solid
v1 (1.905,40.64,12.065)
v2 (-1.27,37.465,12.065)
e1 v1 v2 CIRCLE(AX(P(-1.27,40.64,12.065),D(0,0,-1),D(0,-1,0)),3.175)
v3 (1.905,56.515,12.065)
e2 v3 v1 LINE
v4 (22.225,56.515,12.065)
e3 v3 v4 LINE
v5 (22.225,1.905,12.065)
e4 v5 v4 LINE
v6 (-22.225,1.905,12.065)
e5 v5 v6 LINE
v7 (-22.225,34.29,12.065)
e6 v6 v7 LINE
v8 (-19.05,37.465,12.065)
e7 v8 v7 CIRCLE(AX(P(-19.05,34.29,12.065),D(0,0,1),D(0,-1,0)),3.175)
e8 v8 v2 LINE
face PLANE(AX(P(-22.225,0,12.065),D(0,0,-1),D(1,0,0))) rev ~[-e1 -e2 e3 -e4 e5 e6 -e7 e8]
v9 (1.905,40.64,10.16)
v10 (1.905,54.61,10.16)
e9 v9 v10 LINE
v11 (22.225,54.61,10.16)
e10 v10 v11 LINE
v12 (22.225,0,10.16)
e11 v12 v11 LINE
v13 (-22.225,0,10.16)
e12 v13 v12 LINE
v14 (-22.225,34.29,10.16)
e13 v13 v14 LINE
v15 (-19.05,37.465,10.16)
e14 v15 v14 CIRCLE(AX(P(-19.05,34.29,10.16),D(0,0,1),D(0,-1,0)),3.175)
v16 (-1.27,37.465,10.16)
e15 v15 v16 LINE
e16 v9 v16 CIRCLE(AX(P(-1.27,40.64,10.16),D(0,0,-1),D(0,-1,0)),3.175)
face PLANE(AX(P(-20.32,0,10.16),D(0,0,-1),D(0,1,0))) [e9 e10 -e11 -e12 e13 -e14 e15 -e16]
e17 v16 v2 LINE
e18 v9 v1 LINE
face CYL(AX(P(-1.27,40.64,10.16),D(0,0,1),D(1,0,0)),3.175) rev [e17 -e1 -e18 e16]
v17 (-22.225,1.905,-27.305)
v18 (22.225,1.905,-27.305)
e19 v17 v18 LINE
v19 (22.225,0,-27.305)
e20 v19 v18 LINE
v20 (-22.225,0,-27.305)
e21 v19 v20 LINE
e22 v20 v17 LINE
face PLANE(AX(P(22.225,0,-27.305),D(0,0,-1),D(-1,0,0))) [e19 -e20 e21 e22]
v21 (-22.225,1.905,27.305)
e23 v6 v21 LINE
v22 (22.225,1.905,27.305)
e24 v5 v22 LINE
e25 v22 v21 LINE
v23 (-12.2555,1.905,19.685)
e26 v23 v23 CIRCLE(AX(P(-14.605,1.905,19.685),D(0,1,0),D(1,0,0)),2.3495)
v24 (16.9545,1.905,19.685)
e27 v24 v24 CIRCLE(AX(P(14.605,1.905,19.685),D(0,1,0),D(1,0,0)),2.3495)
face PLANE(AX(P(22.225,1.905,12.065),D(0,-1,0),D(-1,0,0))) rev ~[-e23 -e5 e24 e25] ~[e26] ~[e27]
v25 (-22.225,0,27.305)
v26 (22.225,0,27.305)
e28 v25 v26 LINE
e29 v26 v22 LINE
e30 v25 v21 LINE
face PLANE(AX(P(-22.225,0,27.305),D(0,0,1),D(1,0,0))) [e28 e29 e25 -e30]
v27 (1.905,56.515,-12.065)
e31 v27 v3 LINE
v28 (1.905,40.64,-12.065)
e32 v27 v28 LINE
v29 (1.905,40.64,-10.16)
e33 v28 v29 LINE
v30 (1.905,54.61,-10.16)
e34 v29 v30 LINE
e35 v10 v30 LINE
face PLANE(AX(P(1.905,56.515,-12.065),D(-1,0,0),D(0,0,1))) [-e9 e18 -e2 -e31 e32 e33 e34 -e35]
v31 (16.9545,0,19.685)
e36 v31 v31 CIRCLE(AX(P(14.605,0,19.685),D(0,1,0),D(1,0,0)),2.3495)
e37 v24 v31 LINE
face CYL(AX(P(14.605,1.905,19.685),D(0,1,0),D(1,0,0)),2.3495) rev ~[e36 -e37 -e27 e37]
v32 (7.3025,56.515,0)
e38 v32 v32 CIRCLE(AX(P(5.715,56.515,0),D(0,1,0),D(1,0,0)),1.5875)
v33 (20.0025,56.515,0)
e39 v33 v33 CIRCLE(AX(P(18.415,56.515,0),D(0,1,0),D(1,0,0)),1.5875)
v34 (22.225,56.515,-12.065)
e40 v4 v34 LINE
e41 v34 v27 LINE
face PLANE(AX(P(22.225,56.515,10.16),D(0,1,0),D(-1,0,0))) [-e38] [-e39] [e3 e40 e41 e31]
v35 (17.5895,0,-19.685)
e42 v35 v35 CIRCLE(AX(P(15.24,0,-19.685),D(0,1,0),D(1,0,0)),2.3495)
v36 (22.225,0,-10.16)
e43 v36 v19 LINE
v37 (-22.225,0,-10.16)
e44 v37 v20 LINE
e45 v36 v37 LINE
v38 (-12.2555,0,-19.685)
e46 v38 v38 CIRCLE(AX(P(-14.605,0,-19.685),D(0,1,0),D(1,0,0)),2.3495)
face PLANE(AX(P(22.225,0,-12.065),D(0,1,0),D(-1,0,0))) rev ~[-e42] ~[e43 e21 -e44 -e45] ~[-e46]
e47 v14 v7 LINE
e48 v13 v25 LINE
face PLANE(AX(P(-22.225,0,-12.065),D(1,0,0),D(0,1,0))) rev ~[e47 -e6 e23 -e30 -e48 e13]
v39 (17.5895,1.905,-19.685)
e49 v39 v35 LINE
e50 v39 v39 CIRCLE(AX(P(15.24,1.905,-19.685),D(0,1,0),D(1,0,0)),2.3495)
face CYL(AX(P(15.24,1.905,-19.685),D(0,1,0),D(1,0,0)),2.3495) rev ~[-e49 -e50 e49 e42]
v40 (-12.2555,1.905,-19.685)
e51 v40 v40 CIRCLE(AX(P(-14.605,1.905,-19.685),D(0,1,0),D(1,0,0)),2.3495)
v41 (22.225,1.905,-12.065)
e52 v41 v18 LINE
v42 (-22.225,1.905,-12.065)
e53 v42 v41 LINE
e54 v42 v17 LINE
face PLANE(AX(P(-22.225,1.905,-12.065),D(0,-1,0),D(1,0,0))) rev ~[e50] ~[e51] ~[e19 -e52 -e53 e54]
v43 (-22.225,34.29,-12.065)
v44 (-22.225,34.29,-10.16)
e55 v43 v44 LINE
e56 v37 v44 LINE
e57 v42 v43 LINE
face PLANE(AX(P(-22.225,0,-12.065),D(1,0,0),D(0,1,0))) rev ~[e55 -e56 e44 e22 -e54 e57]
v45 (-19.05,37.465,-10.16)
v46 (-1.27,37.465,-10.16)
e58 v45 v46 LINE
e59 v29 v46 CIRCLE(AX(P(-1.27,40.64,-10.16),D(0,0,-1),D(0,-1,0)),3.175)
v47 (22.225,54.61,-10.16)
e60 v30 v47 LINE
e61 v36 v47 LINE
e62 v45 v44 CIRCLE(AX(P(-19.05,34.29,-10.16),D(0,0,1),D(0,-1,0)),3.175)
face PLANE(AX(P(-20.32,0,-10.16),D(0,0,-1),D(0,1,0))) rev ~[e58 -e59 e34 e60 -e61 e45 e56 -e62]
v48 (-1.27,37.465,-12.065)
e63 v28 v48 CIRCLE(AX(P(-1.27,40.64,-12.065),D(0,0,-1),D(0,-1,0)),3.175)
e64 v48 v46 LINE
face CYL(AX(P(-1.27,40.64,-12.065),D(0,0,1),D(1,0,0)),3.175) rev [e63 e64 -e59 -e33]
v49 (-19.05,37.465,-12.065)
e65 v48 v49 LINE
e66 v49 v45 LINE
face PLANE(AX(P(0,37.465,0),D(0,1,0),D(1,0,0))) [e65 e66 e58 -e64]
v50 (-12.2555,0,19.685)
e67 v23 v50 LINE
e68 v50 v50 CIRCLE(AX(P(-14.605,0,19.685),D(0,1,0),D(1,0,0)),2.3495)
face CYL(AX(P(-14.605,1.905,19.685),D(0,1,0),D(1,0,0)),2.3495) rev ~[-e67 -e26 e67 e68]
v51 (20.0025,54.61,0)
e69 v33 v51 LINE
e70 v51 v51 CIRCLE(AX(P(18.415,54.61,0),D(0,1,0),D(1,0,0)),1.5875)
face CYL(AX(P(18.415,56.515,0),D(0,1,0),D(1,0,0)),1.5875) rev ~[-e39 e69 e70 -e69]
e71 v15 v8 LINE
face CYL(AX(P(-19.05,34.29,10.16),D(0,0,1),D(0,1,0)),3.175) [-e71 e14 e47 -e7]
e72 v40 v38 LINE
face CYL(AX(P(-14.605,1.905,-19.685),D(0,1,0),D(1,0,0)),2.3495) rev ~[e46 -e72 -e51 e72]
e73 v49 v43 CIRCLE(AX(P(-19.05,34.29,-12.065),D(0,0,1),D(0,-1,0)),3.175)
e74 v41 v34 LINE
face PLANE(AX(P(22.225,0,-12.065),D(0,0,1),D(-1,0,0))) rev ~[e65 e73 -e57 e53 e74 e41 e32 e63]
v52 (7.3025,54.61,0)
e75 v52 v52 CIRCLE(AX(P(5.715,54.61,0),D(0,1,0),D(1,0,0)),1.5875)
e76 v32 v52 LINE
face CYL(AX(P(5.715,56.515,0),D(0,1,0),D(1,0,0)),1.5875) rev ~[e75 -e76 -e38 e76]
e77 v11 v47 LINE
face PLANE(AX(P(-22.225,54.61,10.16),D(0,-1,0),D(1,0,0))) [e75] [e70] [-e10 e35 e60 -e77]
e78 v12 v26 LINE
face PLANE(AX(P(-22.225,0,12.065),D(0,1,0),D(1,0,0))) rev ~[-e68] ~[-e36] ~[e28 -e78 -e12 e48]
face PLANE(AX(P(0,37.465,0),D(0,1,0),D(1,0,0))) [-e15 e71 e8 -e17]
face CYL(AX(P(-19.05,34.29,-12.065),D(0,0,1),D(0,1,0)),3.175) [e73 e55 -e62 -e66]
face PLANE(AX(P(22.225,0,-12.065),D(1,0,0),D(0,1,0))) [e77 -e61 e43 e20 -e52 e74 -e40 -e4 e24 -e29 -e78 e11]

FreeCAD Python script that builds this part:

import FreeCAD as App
import Part
import Sketcher
from FreeCAD import Vector
Q = App.Units.Quantity


def edges_at(feature, points):
    """Names of the edges that pass closest to the given points."""
    edges = feature.Shape.Edges
    near = lambda p: min(range(len(edges)), key=lambda i: edges[i].distToShape(Part.Vertex(*p))[0])
    return sorted({f"Edge{near(p) + 1}" for p in points})


def add_polygon(sketch, points):
    """Adds a closed chain of lines whose ends are joined by coincident constraints."""
    first, n = sketch.GeometryCount, len(points)
    for a, b in zip(points, points[1:] + points[:1]):
        sketch.addGeometry(Part.LineSegment(App.Vector(*a, 0), App.Vector(*b, 0)), False)
    for i in range(n):
        sketch.addConstraint(Sketcher.Constraint("Coincident", first + i, 2, first + (i + 1) % n, 1))

doc = App.newDocument("Part")
body = doc.addObject("PartDesign::Body", "Body")
body.AllowCompound = True

# Sketch on XZ plane
sketch1 = body.newObject("Sketcher::SketchObject", "Sketch")
sketch1.AttachmentSupport = (doc.getObject("XZ_Plane"), [""])
sketch1.MapMode = "FlatFace"
add_polygon(sketch1, [(-22.225, -12.065), (-22.225, 12.065), (22.225, 12.065), (22.225, -12.065)])  # lines 0-3
add_polygon(sketch1, [(20.32, 10.16), (-20.32, 10.16), (-20.32, -10.16), (20.32, -10.16)])  # lines 4-7
sketch1.addConstraint([
    Sketcher.Constraint("Vertical", 0),
    Sketcher.Constraint("Horizontal", 1),
    Sketcher.Constraint("Vertical", 2),
    Sketcher.Constraint("Horizontal", 3),
    Sketcher.Constraint("Horizontal", 4),
    Sketcher.Constraint("Vertical", 5),
    Sketcher.Constraint("Horizontal", 6),
    Sketcher.Constraint("Vertical", 7),
    Sketcher.Constraint("Symmetric", 0, 2, 2, 2, -1, 1),
    Sketcher.Constraint("Symmetric", 4, 2, 6, 2, -1, 1),
    Sketcher.Constraint("DistanceX", 4, 2, 4, 1, Q("1.6 in")),
    Sketcher.Constraint("DistanceY", 5, 2, 5, 1, Q("0.8 in")),
    Sketcher.Constraint("DistanceX", 1, 1, 1, 2, Q("1.75 in")),
    Sketcher.Constraint("DistanceY", 0, 1, 0, 2, Q("0.95 in")),
])
pad1 = body.newObject("PartDesign::Pad", "Pad")
pad1.Profile = sketch1
pad1.Length = Q("2.225 in")
pad1.Reversed = True

# Sketch on YZ plane
sketch2 = body.newObject("Sketcher::SketchObject", "Sketch001")
sketch2.AttachmentSupport = (doc.getObject("YZ_Plane"), [""])
sketch2.MapMode = "FlatFace"
sketch2.AttachmentOffset = App.Placement(Vector(0, 0, -0.8 * 25.4), App.Rotation())
add_polygon(sketch2, [(0, 10.16), (0, -10.16), (56.515, -10.16), (56.515, 10.16)])  # lines 0-3
sketch2.addConstraint([
    Sketcher.Constraint("Vertical", 0),
    Sketcher.Constraint("Horizontal", 1),
    Sketcher.Constraint("Vertical", 2),
    Sketcher.Constraint("Horizontal", 3),
    Sketcher.Constraint("Symmetric", 0, 2, 3, 2, -1, 1),
    Sketcher.Constraint("DistanceY", 0, 2, 0, 1, Q("0.8 in")),
    Sketcher.Constraint("DistanceX", 1, 1, 1, 2, Q("2.225 in")),
])
pocket1 = body.newObject("PartDesign::Pocket", "Pocket")
pocket1.Profile = sketch2
pocket1.Length = Q("2.225 in")

# Sketch on YZ plane
sketch3 = body.newObject("Sketcher::SketchObject", "Sketch002")
sketch3.AttachmentSupport = (doc.getObject("YZ_Plane"), [""])
sketch3.MapMode = "FlatFace"
sketch3.AttachmentOffset = App.Placement(Vector(0, 0, 0.8 * 25.4), App.Rotation())
add_polygon(sketch3, [(0, -10.16), (0, 10.16), (56.515, 10.16), (56.515, -10.16)])  # lines 0-3
sketch3.addConstraint([
    Sketcher.Constraint("Vertical", 0),
    Sketcher.Constraint("Horizontal", 1),
    Sketcher.Constraint("Vertical", 2),
    Sketcher.Constraint("Horizontal", 3),
    Sketcher.Constraint("Symmetric", 0, 2, 3, 2, -1, 1),
    Sketcher.Constraint("DistanceY", 0, 1, 0, 2, Q("0.8 in")),
    Sketcher.Constraint("DistanceX", 1, 1, 1, 2, Q("2.225 in")),
])
pocket2 = body.newObject("PartDesign::Pocket", "Pocket001")
pocket2.Profile = sketch3
pocket2.Length = Q("2.225 in")
pocket2.Reversed = True

# Sketch on XY plane
sketch4 = body.newObject("Sketcher::SketchObject", "Sketch003")
sketch4.AttachmentSupport = (doc.getObject("XY_Plane"), [""])
sketch4.MapMode = "FlatFace"
sketch4.AttachmentOffset = App.Placement(Vector(0, 0, 0.4 * 25.4), App.Rotation())
add_polygon(sketch4, [(-22.225, 54.61), (-22.225, 56.515), (22.225, 56.515), (22.225, 54.61)])  # lines 0-3
sketch4.addConstraint([
    Sketcher.Constraint("Vertical", 0),
    Sketcher.Constraint("Horizontal", 1),
    Sketcher.Constraint("Vertical", 2),
    Sketcher.Constraint("Horizontal", 3),
    Sketcher.Constraint("DistanceX", 1, 1, 1, 2, Q("1.75 in")),
    Sketcher.Constraint("DistanceY", 0, 1, 0, 2, Q("0.075 in")),
    Sketcher.Constraint("DistanceY", -1, 1, 2, 2, Q("2.15 in")),
    Sketcher.Constraint("DistanceX", 0, 2, -1, 1, Q("0.875 in")),
])
pad2 = body.newObject("PartDesign::Pad", "Pad001")
pad2.Profile = sketch4
pad2.Length = Q("0.8 in")
pad2.Reversed = True

# Sketch on XY plane
sketch5 = body.newObject("Sketcher::SketchObject", "Sketch004")
sketch5.AttachmentSupport = (doc.getObject("XY_Plane"), [""])
sketch5.MapMode = "FlatFace"
sketch5.AttachmentOffset = App.Placement(Vector(0, 0, 0.475 * 25.4), App.Rotation())
add_polygon(sketch5, [(-22.225, 1.905), (-22.225, 0), (22.225, 0), (22.225, 1.905)])  # lines 0-3
sketch5.addConstraint([
    Sketcher.Constraint("Vertical", 0),
    Sketcher.Constraint("Horizontal", 1),
    Sketcher.Constraint("Vertical", 2),
    Sketcher.Constraint("Horizontal", 3),
    Sketcher.Constraint("Symmetric", 0, 2, 1, 2, -1, 1),
    Sketcher.Constraint("DistanceX", 1, 1, 1, 2, Q("1.75 in")),
    Sketcher.Constraint("DistanceY", 0, 2, 0, 1, Q("0.075 in")),
])
pad3 = body.newObject("PartDesign::Pad", "Pad002")
pad3.Profile = sketch5
pad3.Length = Q("0.6 in")

# Sketch on XY plane
sketch6 = body.newObject("Sketcher::SketchObject", "Sketch005")
sketch6.AttachmentSupport = (doc.getObject("XY_Plane"), [""])
sketch6.MapMode = "FlatFace"
sketch6.AttachmentOffset = App.Placement(Vector(0, 0, -0.475 * 25.4), App.Rotation())
add_polygon(sketch6, [(22.225, 1.905), (22.225, 0), (-22.225, 0), (-22.225, 1.905)])  # lines 0-3
sketch6.addConstraint([
    Sketcher.Constraint("Vertical", 0),
    Sketcher.Constraint("Horizontal", 1),
    Sketcher.Constraint("Vertical", 2),
    Sketcher.Constraint("Horizontal", 3),
    Sketcher.Constraint("Symmetric", 0, 2, 1, 2, -1, 1),
    Sketcher.Constraint("DistanceX", 1, 2, 1, 1, Q("1.75 in")),
    Sketcher.Constraint("DistanceY", 0, 2, 0, 1, Q("0.075 in")),
])
pad4 = body.newObject("PartDesign::Pad", "Pad003")
pad4.Profile = sketch6
pad4.Length = Q("0.6 in")
pad4.Reversed = True

# Sketch on XZ plane
sketch7 = body.newObject("Sketcher::SketchObject", "Sketch006")
sketch7.AttachmentSupport = (doc.getObject("XZ_Plane"), [""])
sketch7.MapMode = "FlatFace"
sketch7.AttachmentOffset = App.Placement(Vector(0, 0, -2.225 * 25.4), App.Rotation())
sketch7.addGeometry([
    Part.Circle(Vector(18.415, 0, 0), Vector(0, 0, 1), 1.5875),
    Part.Circle(Vector(5.715, 0, 0), Vector(0, 0, 1), 1.5875),
    Part.Circle(Vector(-12.065, 0, 0), Vector(0, 0, 1), 3.175),
], False)
sketch7.addConstraint([
    Sketcher.Constraint("Equal", 0, 1),
    Sketcher.Constraint("PointOnObject", 0, 3, -1),
    Sketcher.Constraint("PointOnObject", 1, 3, -1),
    Sketcher.Constraint("PointOnObject", 2, 3, -1),
    Sketcher.Constraint("Diameter", 2, Q("0.25 in")),
    Sketcher.Constraint("Diameter", 0, Q("0.125 in")),
    Sketcher.Constraint("DistanceX", 1, 3, 0, 3, Q("0.5 in")),
    Sketcher.Constraint("DistanceX", 2, 3, 1, 3, Q("0.7 in")),
    Sketcher.Constraint("DistanceX", -1, 1, 0, 3, Q("0.725 in")),
])
pocket3 = body.newObject("PartDesign::Pocket", "Pocket002")
pocket3.Profile = sketch7
pocket3.Length = Q("0.6 in")
pocket3.Reversed = True

# Sketch on XZ plane
sketch8 = body.newObject("Sketcher::SketchObject", "Sketch007")
sketch8.AttachmentSupport = (doc.getObject("XZ_Plane"), [""])
sketch8.MapMode = "FlatFace"
sketch8.AttachmentOffset = App.Placement(Vector(0, 0, -0.075 * 25.4), App.Rotation())
sketch8.addGeometry([
    Part.Circle(Vector(-14.605, 19.685, 0), Vector(0, 0, 1), 2.3495),
    Part.Circle(Vector(14.605, 19.685, 0), Vector(0, 0, 1), 2.3495),
], False)
sketch8.addConstraint([
    Sketcher.Constraint("Equal", 0, 1),
    Sketcher.Constraint("Symmetric", 0, 3, 1, 3, -2),
    Sketcher.Constraint("Diameter", 0, Q("0.185 in")),
    Sketcher.Constraint("DistanceX", 0, 3, 1, 3, Q("1.15 in")),
    Sketcher.Constraint("DistanceY", -1, 1, 0, 3, Q("0.775 in")),
])
pocket4 = body.newObject("PartDesign::Pocket", "Pocket003")
pocket4.Profile = sketch8
pocket4.Length = Q("0.6 in")
pocket4.Reversed = True

# Sketch on XZ plane
sketch9 = body.newObject("Sketcher::SketchObject", "Sketch008")
sketch9.AttachmentSupport = (doc.getObject("XZ_Plane"), [""])
sketch9.MapMode = "FlatFace"
sketch9.AttachmentOffset = App.Placement(Vector(0, 0, -0.075 * 25.4), App.Rotation())
sketch9.addGeometry([
    Part.Circle(Vector(-14.605, -19.685, 0), Vector(0, 0, 1), 2.3495),
    Part.Circle(Vector(15.24, -19.685, 0), Vector(0, 0, 1), 2.3495),
], False)
sketch9.addConstraint([
    Sketcher.Constraint("Equal", 0, 1),
    Sketcher.Constraint("Horizontal", 0, 3, 1, 3),
    Sketcher.Constraint("Diameter", 0, Q("0.185 in")),
    Sketcher.Constraint("DistanceX", -1, 1, 1, 3, Q("0.6 in")),
    Sketcher.Constraint("DistanceX", 0, 3, -1, 1, Q("0.575 in")),
    Sketcher.Constraint("DistanceY", 0, 3, -1, 1, Q("0.775 in")),
])
pocket5 = body.newObject("PartDesign::Pocket", "Pocket004")
pocket5.Profile = sketch9
pocket5.Length = Q("0.6 in")
pocket5.Reversed = True

# Sketch on XZ plane
sketch10 = body.newObject("Sketcher::SketchObject", "Sketch009")
sketch10.AttachmentSupport = (doc.getObject("XZ_Plane"), [""])
sketch10.MapMode = "FlatFace"
sketch10.AttachmentOffset = App.Placement(Vector(0, 0, -2.225 * 25.4), App.Rotation())
add_polygon(sketch10, [(1.905, -12.065), (-22.225, -12.065), (-22.225, 12.065), (1.905, 12.065)])  # lines 0-3
sketch10.addGeometry(Part.Circle(Vector(-12.065, 0, 0), Vector(0, 0, 1), 3.175), False)  # 4
sketch10.addConstraint([
    Sketcher.Constraint("Horizontal", 0),
    Sketcher.Constraint("Vertical", 1),
    Sketcher.Constraint("Horizontal", 2),
    Sketcher.Constraint("Vertical", 3),
    Sketcher.Constraint("PointOnObject", 4, 3, -1),
    Sketcher.Constraint("Equal", 2, 1),
    Sketcher.Constraint("Diameter", 4, Q("0.25 in")),
    Sketcher.Constraint("DistanceX", 0, 2, 0, 1, Q("0.95 in")),
    Sketcher.Constraint("DistanceX", 0, 2, 4, 3, Q("0.4 in")),
    Sketcher.Constraint("DistanceX", 4, 3, -1, 1, Q("0.475 in")),
    Sketcher.Constraint("DistanceY", 0, 2, -1, 1, Q("0.475 in")),
])
pocket6 = body.newObject("PartDesign::Pocket", "Pocket005")
pocket6.Profile = sketch10
pocket6.Length = Q("0.75 in")
pocket6.Reversed = True
doc.recompute()

fillet = body.newObject("PartDesign::Fillet", "Fillet")
fillet.Base = (pocket6, edges_at(pocket6, [(-22.225, 37.465, 11.113)]))
fillet.Radius = Q("0.125 in")
doc.recompute()

fillet2 = body.newObject("PartDesign::Fillet", "Fillet001")
fillet2.Base = (fillet, edges_at(fillet, [(-22.225, 37.465, -11.113)]))
fillet2.Radius = Q("0.125 in")
doc.recompute()

fillet3 = body.newObject("PartDesign::Fillet", "Fillet002")
fillet3.Base = (fillet2, edges_at(fillet2, [(1.905, 37.465, 11.113)]))
fillet3.Radius = Q("0.125 in")
doc.recompute()

fillet4 = body.newObject("PartDesign::Fillet", "Fillet003")
fillet4.Base = (fillet3, edges_at(fillet3, [(1.905, 37.465, -11.113)]))
fillet4.Radius = Q("0.125 in")

doc.recompute()
